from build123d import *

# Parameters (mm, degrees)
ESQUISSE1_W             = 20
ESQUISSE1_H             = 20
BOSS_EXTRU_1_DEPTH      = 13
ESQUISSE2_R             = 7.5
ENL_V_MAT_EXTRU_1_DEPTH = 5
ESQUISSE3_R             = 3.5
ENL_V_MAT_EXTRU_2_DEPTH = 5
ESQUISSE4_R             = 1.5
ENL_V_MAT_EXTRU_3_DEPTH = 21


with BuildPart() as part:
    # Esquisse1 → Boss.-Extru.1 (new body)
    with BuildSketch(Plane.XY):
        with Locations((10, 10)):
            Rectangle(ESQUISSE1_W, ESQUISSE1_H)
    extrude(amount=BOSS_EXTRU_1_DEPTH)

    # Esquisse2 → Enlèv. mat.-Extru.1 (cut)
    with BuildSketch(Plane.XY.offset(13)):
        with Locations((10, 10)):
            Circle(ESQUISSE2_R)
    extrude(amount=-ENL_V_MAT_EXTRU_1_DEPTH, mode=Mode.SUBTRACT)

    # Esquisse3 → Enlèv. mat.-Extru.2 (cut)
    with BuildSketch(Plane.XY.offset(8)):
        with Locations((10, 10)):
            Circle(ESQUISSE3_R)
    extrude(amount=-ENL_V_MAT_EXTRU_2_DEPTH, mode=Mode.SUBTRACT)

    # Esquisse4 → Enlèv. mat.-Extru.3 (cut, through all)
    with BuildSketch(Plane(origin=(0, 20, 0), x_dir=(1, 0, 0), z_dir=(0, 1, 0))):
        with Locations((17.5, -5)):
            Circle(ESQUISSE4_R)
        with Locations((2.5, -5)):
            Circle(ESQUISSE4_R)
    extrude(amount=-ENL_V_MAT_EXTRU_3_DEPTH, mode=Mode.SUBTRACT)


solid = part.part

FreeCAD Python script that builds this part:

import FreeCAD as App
import Part
import Sketcher
Q = App.Units.Quantity


def add_polygon(sketch, points):
    """Adds a closed chain of lines whose ends are joined by coincident constraints."""
    first, n = sketch.GeometryCount, len(points)
    for a, b in zip(points, points[1:] + points[:1]):
        sketch.addGeometry(Part.LineSegment(App.Vector(*a, 0), App.Vector(*b, 0)), False)
    for i in range(n):
        sketch.addConstraint(Sketcher.Constraint("Coincident", first + i, 2, first + (i + 1) % n, 1))

doc = App.newDocument("Part")
body = doc.addObject("PartDesign::Body", "Body")

# Sketch on XY plane
sketch1 = body.newObject("Sketcher::SketchObject", "Sketch")
sketch1.AttachmentSupport = (doc.getObject("XY_Plane"), [""])
sketch1.MapMode = "FlatFace"
add_polygon(sketch1, [(0, 20), (0, 0), (20, 0), (20, 20)])  # lines 0-3
sketch1.addConstraint([
    Sketcher.Constraint("Vertical", 0),
    Sketcher.Constraint("Horizontal", 1),
    Sketcher.Constraint("Vertical", 2),
    Sketcher.Constraint("Horizontal", 3),
    Sketcher.Constraint("Coincident", 0, 2, -1, 1),
    Sketcher.Constraint("Equal", 3, 0),
    Sketcher.Constraint("DistanceX", 1, 1, 1, 2, Q("20 mm")),
])
pad1 = body.newObject("PartDesign::Pad", "Pad")
pad1.Profile = sketch1
pad1.Length = 13

# Sketch on XY plane
sketch2 = body.newObject("Sketcher::SketchObject", "Sketch001")
sketch2.AttachmentSupport = (doc.getObject("XY_Plane"), [""])
sketch2.MapMode = "FlatFace"
sketch2.AttachmentOffset = App.Placement(App.Vector(0, 0, 13), App.Rotation())
sketch2.addGeometry(Part.Circle(App.Vector(10, 10, 0), App.Vector(0, 0, 1), 7.5), False)
sketch2.addConstraint([
    Sketcher.Constraint("Diameter", 0, Q("15 mm")),
    Sketcher.Constraint("DistanceX", -1, 1, 0, 3, Q("10 mm")),
    Sketcher.Constraint("DistanceY", -1, 1, 0, 3, Q("10 mm")),
])
pocket1 = body.newObject("PartDesign::Pocket", "Pocket")
pocket1.Profile = sketch2
pocket1.Length = 5

# Sketch on XY plane
sketch3 = body.newObject("Sketcher::SketchObject", "Sketch002")
sketch3.AttachmentSupport = (doc.getObject("XY_Plane"), [""])
sketch3.MapMode = "FlatFace"
sketch3.AttachmentOffset = App.Placement(App.Vector(0, 0, 8), App.Rotation())
sketch3.addGeometry(Part.Circle(App.Vector(10, 10, 0), App.Vector(0, 0, 1), 3.5), False)
sketch3.addConstraint([
    Sketcher.Constraint("Diameter", 0, Q("7 mm")),
    Sketcher.Constraint("DistanceX", -1, 1, 0, 3, Q("10 mm")),
    Sketcher.Constraint("DistanceY", -1, 1, 0, 3, Q("10 mm")),
])
pocket2 = body.newObject("PartDesign::Pocket", "Pocket001")
pocket2.Profile = sketch3
pocket2.Length = 5

# Sketch on XZ plane
sketch4 = body.newObject("Sketcher::SketchObject", "Sketch003")
sketch4.AttachmentSupport = (doc.getObject("XZ_Plane"), [""])
sketch4.MapMode = "FlatFace"
sketch4.AttachmentOffset = App.Placement(App.Vector(0, 0, -20), App.Rotation())
sketch4.addGeometry([
    Part.Circle(App.Vector(17.5, 5, 0), App.Vector(0, 0, 1), 1.5),
    Part.Circle(App.Vector(2.5, 5, 0), App.Vector(0, 0, 1), 1.5),
], False)
sketch4.addConstraint([
    Sketcher.Constraint("Equal", 0, 1),
    Sketcher.Constraint("Horizontal", 0, 3, 1, 3),
    Sketcher.Constraint("Diameter", 0, Q("3 mm")),
    Sketcher.Constraint("DistanceY", -1, 1, 0, 3, Q("5 mm")),
    Sketcher.Constraint("DistanceX", 1, 3, 0, 3, Q("15 mm")),
    Sketcher.Constraint("DistanceX", -1, 1, 0, 3, Q("17.5 mm")),
])
pocket3 = body.newObject("PartDesign::Pocket", "Pocket002")
pocket3.Profile = sketch4
pocket3.Type = "ThroughAll"
pocket3.Reversed = True

doc.recompute()
